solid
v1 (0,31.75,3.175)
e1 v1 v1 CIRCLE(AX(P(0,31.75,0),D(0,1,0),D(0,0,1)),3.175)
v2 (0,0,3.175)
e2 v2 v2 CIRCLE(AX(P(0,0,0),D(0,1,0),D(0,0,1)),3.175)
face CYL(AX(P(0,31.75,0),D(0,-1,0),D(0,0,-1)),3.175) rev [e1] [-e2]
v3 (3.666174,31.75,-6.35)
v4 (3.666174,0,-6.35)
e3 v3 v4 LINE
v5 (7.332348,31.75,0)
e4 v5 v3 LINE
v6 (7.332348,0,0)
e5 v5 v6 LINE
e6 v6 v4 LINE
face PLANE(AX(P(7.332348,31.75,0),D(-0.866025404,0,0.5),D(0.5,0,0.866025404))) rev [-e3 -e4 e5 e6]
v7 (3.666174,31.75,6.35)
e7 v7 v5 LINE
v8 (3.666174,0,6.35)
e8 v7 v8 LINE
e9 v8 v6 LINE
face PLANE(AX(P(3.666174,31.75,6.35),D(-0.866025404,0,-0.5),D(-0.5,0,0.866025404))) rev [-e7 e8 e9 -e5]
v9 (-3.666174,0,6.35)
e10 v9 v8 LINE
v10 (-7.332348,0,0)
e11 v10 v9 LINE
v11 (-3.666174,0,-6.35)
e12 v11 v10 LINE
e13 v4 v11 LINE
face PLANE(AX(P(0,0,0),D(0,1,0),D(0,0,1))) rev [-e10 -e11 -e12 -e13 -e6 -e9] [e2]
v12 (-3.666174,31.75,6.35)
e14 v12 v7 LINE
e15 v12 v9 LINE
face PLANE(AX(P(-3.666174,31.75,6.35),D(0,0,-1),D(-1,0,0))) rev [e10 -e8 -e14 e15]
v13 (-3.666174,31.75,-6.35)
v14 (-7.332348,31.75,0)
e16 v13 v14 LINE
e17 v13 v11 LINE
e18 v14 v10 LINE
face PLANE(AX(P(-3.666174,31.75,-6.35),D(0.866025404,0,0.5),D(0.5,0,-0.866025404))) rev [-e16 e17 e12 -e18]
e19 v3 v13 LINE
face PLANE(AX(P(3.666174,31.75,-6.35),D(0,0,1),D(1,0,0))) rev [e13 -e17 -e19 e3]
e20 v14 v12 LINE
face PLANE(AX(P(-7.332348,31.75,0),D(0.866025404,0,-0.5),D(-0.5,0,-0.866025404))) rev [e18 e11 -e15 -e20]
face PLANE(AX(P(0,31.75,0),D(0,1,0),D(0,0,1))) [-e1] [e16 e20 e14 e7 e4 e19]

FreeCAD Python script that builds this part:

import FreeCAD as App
import Part
import Sketcher
from FreeCAD import Vector
Q = App.Units.Quantity


def add_polygon(sketch, points):
    """Adds a closed chain of lines whose ends are joined by coincident constraints."""
    first, n = sketch.GeometryCount, len(points)
    for a, b in zip(points, points[1:] + points[:1]):
        sketch.addGeometry(Part.LineSegment(App.Vector(*a, 0), App.Vector(*b, 0)), False)
    for i in range(n):
        sketch.addConstraint(Sketcher.Constraint("Coincident", first + i, 2, first + (i + 1) % n, 1))

doc = App.newDocument("Part")
body = doc.addObject("PartDesign::Body", "Body")

sketch1 = body.newObject("Sketcher::SketchObject", "Sketch")
sketch1.AttachmentSupport = (doc.getObject("XZ_Plane"), [""])
sketch1.MapMode = "FlatFace"
add_polygon(sketch1, [(7.332348, 0), (3.666174, -6.35), (-3.666174, -6.35), (-7.332348, 0), (-3.666174, 6.35), (3.666174, 6.35)])
sketch1.addGeometry(Part.Circle(Vector(0, 0, 0), Vector(0, 0, 1), 3.175), False)
sketch1.addConstraint([
    Sketcher.Constraint("Horizontal", 1),
    Sketcher.Constraint("Horizontal", 4),
    Sketcher.Constraint("Coincident", 6, 3, -1, 1),
    Sketcher.Constraint("Symmetric", 0, 2, 3, 2, -1, 1),
    Sketcher.Constraint("Symmetric", 2, 2, 5, 2, -1, 1),
    Sketcher.Constraint("PointOnObject", 2, 2, -1),
    Sketcher.Constraint("Parallel", 2, 5),
    Sketcher.Constraint("Vertical", 1, 2, 3, 2),
    Sketcher.Constraint("Diameter", 6, Q("0.25 in")),
    Sketcher.Constraint("Angle", 0, Q("-120 deg")),
    Sketcher.Constraint("DistanceY", 1, 2, 3, 2, Q("0.5 in")),
    Sketcher.Constraint("DistanceX", 1, 2, 1, 1, 7.332348),
])
pad1 = body.newObject("PartDesign::Pad", "Pad")
pad1.Profile = sketch1
pad1.Length = Q("1.25 in")
pad1.Reversed = True

doc.recompute()
